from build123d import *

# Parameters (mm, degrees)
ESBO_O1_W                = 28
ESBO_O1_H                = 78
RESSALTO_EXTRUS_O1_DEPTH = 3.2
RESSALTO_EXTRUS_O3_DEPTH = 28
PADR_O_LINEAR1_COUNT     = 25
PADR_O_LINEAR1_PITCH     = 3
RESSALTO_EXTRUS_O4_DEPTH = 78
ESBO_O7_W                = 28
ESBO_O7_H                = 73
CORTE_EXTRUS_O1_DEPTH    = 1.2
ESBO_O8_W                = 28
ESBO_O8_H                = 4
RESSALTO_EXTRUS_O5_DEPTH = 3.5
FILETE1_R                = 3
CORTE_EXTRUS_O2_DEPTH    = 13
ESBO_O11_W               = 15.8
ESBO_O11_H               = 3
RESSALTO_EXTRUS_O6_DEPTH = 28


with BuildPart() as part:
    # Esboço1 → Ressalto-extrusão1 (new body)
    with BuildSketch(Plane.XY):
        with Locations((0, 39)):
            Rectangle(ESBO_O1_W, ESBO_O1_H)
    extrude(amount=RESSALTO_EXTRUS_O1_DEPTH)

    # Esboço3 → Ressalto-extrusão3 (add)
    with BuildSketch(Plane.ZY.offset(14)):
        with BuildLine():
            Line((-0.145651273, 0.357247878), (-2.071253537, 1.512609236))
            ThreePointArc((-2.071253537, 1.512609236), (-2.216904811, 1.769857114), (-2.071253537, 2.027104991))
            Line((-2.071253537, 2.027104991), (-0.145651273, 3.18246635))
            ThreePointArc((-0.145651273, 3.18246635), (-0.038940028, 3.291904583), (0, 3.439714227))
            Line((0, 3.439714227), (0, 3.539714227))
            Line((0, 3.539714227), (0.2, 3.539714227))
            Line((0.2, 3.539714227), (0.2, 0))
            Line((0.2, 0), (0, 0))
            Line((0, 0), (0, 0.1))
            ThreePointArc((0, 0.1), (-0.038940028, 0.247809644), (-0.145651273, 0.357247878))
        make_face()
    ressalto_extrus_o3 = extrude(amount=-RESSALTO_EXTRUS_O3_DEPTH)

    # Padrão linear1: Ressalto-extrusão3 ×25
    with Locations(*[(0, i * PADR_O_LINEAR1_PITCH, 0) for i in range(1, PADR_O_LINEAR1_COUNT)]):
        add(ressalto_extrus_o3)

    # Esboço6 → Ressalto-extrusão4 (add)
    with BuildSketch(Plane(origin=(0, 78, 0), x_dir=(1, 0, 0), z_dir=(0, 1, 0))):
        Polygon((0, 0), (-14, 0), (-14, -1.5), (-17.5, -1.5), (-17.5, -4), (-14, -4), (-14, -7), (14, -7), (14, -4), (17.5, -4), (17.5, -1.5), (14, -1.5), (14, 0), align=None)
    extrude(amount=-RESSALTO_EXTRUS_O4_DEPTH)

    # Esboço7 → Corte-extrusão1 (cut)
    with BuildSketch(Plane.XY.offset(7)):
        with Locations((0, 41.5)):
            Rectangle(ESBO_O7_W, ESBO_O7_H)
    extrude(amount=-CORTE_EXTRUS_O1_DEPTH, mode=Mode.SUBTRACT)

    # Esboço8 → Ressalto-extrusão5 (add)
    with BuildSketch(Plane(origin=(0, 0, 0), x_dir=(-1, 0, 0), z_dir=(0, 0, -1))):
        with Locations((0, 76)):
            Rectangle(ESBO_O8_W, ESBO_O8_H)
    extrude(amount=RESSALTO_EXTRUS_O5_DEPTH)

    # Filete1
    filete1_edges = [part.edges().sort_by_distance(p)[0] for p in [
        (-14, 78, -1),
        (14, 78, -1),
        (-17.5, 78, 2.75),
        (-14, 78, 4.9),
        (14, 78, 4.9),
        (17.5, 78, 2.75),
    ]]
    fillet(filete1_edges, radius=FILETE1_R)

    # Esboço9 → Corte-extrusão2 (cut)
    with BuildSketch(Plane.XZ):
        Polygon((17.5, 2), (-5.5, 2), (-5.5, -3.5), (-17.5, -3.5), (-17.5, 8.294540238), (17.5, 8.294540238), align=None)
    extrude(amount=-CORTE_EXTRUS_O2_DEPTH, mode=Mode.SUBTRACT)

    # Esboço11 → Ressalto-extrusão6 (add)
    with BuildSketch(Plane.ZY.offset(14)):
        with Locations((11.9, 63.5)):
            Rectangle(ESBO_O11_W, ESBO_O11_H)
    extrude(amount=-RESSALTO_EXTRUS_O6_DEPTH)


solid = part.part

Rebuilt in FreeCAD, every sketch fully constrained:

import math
import FreeCAD as App
import Part
import Sketcher

V = App.Vector
Q = App.Units.Quantity


def edges_at(feature, points):
    """Names of the edges that pass closest to the given points."""
    edges = feature.Shape.Edges
    near = lambda p: min(range(len(edges)), key=lambda i: edges[i].distToShape(Part.Vertex(*p))[0])
    return sorted({f"Edge{near(p) + 1}" for p in points})

doc = App.newDocument("Part")
params = doc.addObject("Spreadsheet::Sheet", "Params")
for row, (alias, value) in enumerate([
    ("sketch1_width", "28 mm"),
    ("sketch1_height", "78 mm"),
    ("pad1_length", "3.2 mm"),
    ("sketch2_radius", "0.3 mm"),
    ("sketch2_width", "0.1 mm"),
    ("sketch2_height", "0.2 mm"),
    ("pad2_length", "28 mm"),
    ("linearpattern_pitch", "3 mm"),
    ("sketch3_width", "28 mm"),
    ("sketch3_height", "3 mm"),
    ("sketch3_width2", "3.5 mm"),
    ("sketch3_height2", "1.5 mm"),
    ("sketch3_height3", "2.5 mm"),
    ("pad3_length", "78 mm"),
    ("sketch4_width", "28 mm"),
    ("sketch4_height", "73 mm"),
    ("pocket1_length", "1.2 mm"),
    ("sketch5_width", "28 mm"),
    ("sketch5_height", "4 mm"),
    ("pad4_length", "3.5 mm"),
    ("fillet_radius", "3 mm"),
    ("sketch6_width", "23 mm"),
    ("sketch6_width2", "35 mm"),
    ("sketch6_height", "5.5 mm"),
    ("pocket2_length", "13 mm"),
    ("sketch7_width", "3 mm"),
    ("sketch7_height", "15.8 mm"),
    ("pad5_length", "28 mm"),
], start=1):
    params.set(f"A{row}", alias)
    params.set(f"B{row}", "=" + value)
    params.setAlias(f"B{row}", alias)

body = doc.addObject("PartDesign::Body", "Body")

# Sketch on XY plane
sketch1 = body.newObject("Sketcher::SketchObject", "Sketch")
sketch1.AttachmentSupport = (doc.getObject("XY_Plane"), [""])
sketch1.MapMode = "FlatFace"
sketch1.addGeometry(Part.LineSegment(V(-14, 78, 0), V(-14, 0, 0)), False)
sketch1.addGeometry(Part.LineSegment(V(-14, 0, 0), V(14, 0, 0)), False)
sketch1.addGeometry(Part.LineSegment(V(14, 0, 0), V(14, 78, 0)), False)
sketch1.addGeometry(Part.LineSegment(V(14, 78, 0), V(-14, 78, 0)), False)
sketch1.addConstraint(Sketcher.Constraint("Coincident", 0, 2, 1, 1))
sketch1.addConstraint(Sketcher.Constraint("Coincident", 1, 2, 2, 1))
sketch1.addConstraint(Sketcher.Constraint("Coincident", 2, 2, 3, 1))
sketch1.addConstraint(Sketcher.Constraint("Coincident", 3, 2, 0, 1))
sketch1.addConstraint(Sketcher.Constraint("Vertical", 0))
sketch1.addConstraint(Sketcher.Constraint("Horizontal", 1))
sketch1.addConstraint(Sketcher.Constraint("Vertical", 2))
sketch1.addConstraint(Sketcher.Constraint("Horizontal", 3))
sketch1.addConstraint(Sketcher.Constraint("Symmetric", 0, 2, 1, 2, -1, 1))
sketch1.addConstraint(Sketcher.Constraint("DistanceX", 1, 1, 1, 2, Q("28 mm")))
sketch1.addConstraint(Sketcher.Constraint("DistanceY", 0, 2, 0, 1, Q("78 mm")))
sketch1.setExpression("Constraints[9]", "Params.sketch1_width")
sketch1.setExpression("Constraints[10]", "Params.sketch1_height")
pad1 = body.newObject("PartDesign::Pad", "Pad")
pad1.Profile = sketch1
pad1.setExpression("Length", "Params.pad1_length")

# Sketch on YZ plane
sketch2 = body.newObject("Sketcher::SketchObject", "Sketch001")
sketch2.AttachmentSupport = (doc.getObject("YZ_Plane"), [""])
sketch2.MapMode = "FlatFace"
sketch2.AttachmentOffset = App.Placement(V(0, 0, -14), App.Rotation())
sketch2.addGeometry(Part.LineSegment(V(1.51, -2.07, 0), V(0.36, -0.15, 0)), False)
sketch2.addGeometry(Part.ArcOfCircle(Part.Circle(V(0.1, -0.3, 0), V(0, 0, 1), 0.3), math.radians(31), math.radians(90)), False)
sketch2.addGeometry(Part.LineSegment(V(0.1, 0, 0), V(0, 0, 0)), False)
sketch2.addGeometry(Part.LineSegment(V(0, 0, 0), V(0, 0.2, 0)), False)
sketch2.addGeometry(Part.LineSegment(V(0, 0.2, 0), V(3.54, 0.2, 0)), False)
sketch2.addGeometry(Part.LineSegment(V(3.54, 0.2, 0), V(3.54, 0, 0)), False)
sketch2.addGeometry(Part.LineSegment(V(3.54, 0, 0), V(3.44, 0, 0)), False)
sketch2.addGeometry(Part.ArcOfCircle(Part.Circle(V(3.44, -0.3, 0), V(0, 0, 1), 0.3), math.radians(90), math.radians(149)), False)
sketch2.addGeometry(Part.LineSegment(V(3.18, -0.15, 0), V(2.03, -2.07, 0)), False)
sketch2.addGeometry(Part.ArcOfCircle(Part.Circle(V(1.77, -1.92, 0), V(0, 0, 1), 0.3), math.radians(-149), math.radians(-31)), False)
sketch2.addConstraint(Sketcher.Constraint("Tangent", 0, 2, 1, 1))
sketch2.addConstraint(Sketcher.Constraint("Tangent", 1, 2, 2, 1))
sketch2.addConstraint(Sketcher.Constraint("Coincident", 2, 2, 3, 1))
sketch2.addConstraint(Sketcher.Constraint("Coincident", 3, 2, 4, 1))
sketch2.addConstraint(Sketcher.Constraint("Coincident", 4, 2, 5, 1))
sketch2.addConstraint(Sketcher.Constraint("Coincident", 5, 2, 6, 1))
sketch2.addConstraint(Sketcher.Constraint("Tangent", 6, 2, 7, 1))
sketch2.addConstraint(Sketcher.Constraint("Tangent", 7, 2, 8, 1))
sketch2.addConstraint(Sketcher.Constraint("Tangent", 8, 2, 9, 2))
sketch2.addConstraint(Sketcher.Constraint("Tangent", 9, 1, 0, 1))
sketch2.addConstraint(Sketcher.Constraint("Horizontal", 2))
sketch2.addConstraint(Sketcher.Constraint("Vertical", 3))
sketch2.addConstraint(Sketcher.Constraint("Horizontal", 4))
sketch2.addConstraint(Sketcher.Constraint("Vertical", 5))
sketch2.addConstraint(Sketcher.Constraint("Horizontal", 6))
sketch2.addConstraint(Sketcher.Constraint("Coincident", 2, 2, -1, 1))
sketch2.addConstraint(Sketcher.Constraint("Equal", 1, 7))
sketch2.addConstraint(Sketcher.Constraint("Equal", 7, 9))
sketch2.addConstraint(Sketcher.Constraint("PointOnObject", 5, 2, -1))
sketch2.addConstraint(Sketcher.Constraint("Horizontal", 0, 2, 7, 2))
sketch2.addConstraint(Sketcher.Constraint("Equal", 2, 6))
sketch2.addConstraint(Sketcher.Constraint("Radius", 1, Q("0.3 mm")))
sketch2.addConstraint(Sketcher.Constraint("DistanceX", 2, 2, 2, 1, Q("0.1 mm")))
sketch2.addConstraint(Sketcher.Constraint("DistanceY", 3, 1, 3, 2, Q("0.2 mm")))
sketch2.addConstraint(Sketcher.Constraint("Distance", 0, Q("2.245619 mm")))
sketch2.addConstraint(Sketcher.Constraint("DistanceX", 4, 1, 4, 2, Q("3.539714 mm")))
sketch2.setExpression("Constraints[21]", "Params.sketch2_radius")
sketch2.setExpression("Constraints[22]", "Params.sketch2_width")
sketch2.setExpression("Constraints[23]", "Params.sketch2_height")
pad2 = body.newObject("PartDesign::Pad", "Pad001")
pad2.Profile = sketch2
pad2.setExpression("Length", "Params.pad2_length")
doc.recompute()

linearpattern = body.newObject("PartDesign::LinearPattern", "LinearPattern")
linearpattern.Originals = [pad2]
linearpattern.Direction = (doc.getObject("Y_Axis"), [""])
linearpattern.Mode = "offset"
linearpattern.setExpression("Offset", "Params.linearpattern_pitch")
linearpattern.Occurrences = 25
body.Tip = linearpattern

# Sketch on XZ plane
sketch3 = body.newObject("Sketcher::SketchObject", "Sketch002")
sketch3.AttachmentSupport = (doc.getObject("XZ_Plane"), [""])
sketch3.MapMode = "FlatFace"
sketch3.AttachmentOffset = App.Placement(V(0, 0, -78), App.Rotation())
sketch3.addGeometry(Part.LineSegment(V(-14, 0, 0), V(-14, 1.5, 0)), False)
sketch3.addGeometry(Part.LineSegment(V(-14, 1.5, 0), V(-17.5, 1.5, 0)), False)
sketch3.addGeometry(Part.LineSegment(V(-17.5, 1.5, 0), V(-17.5, 4, 0)), False)
sketch3.addGeometry(Part.LineSegment(V(-17.5, 4, 0), V(-14, 4, 0)), False)
sketch3.addGeometry(Part.LineSegment(V(-14, 4, 0), V(-14, 7, 0)), False)
sketch3.addGeometry(Part.LineSegment(V(-14, 7, 0), V(14, 7, 0)), False)
sketch3.addGeometry(Part.LineSegment(V(14, 7, 0), V(14, 4, 0)), False)
sketch3.addGeometry(Part.LineSegment(V(14, 4, 0), V(17.5, 4, 0)), False)
sketch3.addGeometry(Part.LineSegment(V(17.5, 4, 0), V(17.5, 1.5, 0)), False)
sketch3.addGeometry(Part.LineSegment(V(17.5, 1.5, 0), V(14, 1.5, 0)), False)
sketch3.addGeometry(Part.LineSegment(V(14, 1.5, 0), V(14, 0, 0)), False)
sketch3.addGeometry(Part.LineSegment(V(14, 0, 0), V(-14, 0, 0)), False)
sketch3.addConstraint(Sketcher.Constraint("Coincident", 0, 2, 1, 1))
sketch3.addConstraint(Sketcher.Constraint("Coincident", 1, 2, 2, 1))
sketch3.addConstraint(Sketcher.Constraint("Coincident", 2, 2, 3, 1))
sketch3.addConstraint(Sketcher.Constraint("Coincident", 3, 2, 4, 1))
sketch3.addConstraint(Sketcher.Constraint("Coincident", 4, 2, 5, 1))
sketch3.addConstraint(Sketcher.Constraint("Coincident", 5, 2, 6, 1))
sketch3.addConstraint(Sketcher.Constraint("Coincident", 6, 2, 7, 1))
sketch3.addConstraint(Sketcher.Constraint("Coincident", 7, 2, 8, 1))
sketch3.addConstraint(Sketcher.Constraint("Coincident", 8, 2, 9, 1))
sketch3.addConstraint(Sketcher.Constraint("Coincident", 9, 2, 10, 1))
sketch3.addConstraint(Sketcher.Constraint("Coincident", 10, 2, 11, 1))
sketch3.addConstraint(Sketcher.Constraint("Coincident", 11, 2, 0, 1))
sketch3.addConstraint(Sketcher.Constraint("Vertical", 0))
sketch3.addConstraint(Sketcher.Constraint("Horizontal", 1))
sketch3.addConstraint(Sketcher.Constraint("Vertical", 2))
sketch3.addConstraint(Sketcher.Constraint("Horizontal", 3))
sketch3.addConstraint(Sketcher.Constraint("Vertical", 4))
sketch3.addConstraint(Sketcher.Constraint("Horizontal", 5))
sketch3.addConstraint(Sketcher.Constraint("Vertical", 6))
sketch3.addConstraint(Sketcher.Constraint("Horizontal", 7))
sketch3.addConstraint(Sketcher.Constraint("Vertical", 8))
sketch3.addConstraint(Sketcher.Constraint("Horizontal", 9))
sketch3.addConstraint(Sketcher.Constraint("Vertical", 10))
sketch3.addConstraint(Sketcher.Constraint("Horizontal", 11))
sketch3.addConstraint(Sketcher.Constraint("Symmetric", 10, 2, 11, 2, -1, 1))
sketch3.addConstraint(Sketcher.Constraint("Symmetric", 3, 2, 6, 2, -2))
sketch3.addConstraint(Sketcher.Constraint("Symmetric", 1, 2, 8, 2, -2))
sketch3.addConstraint(Sketcher.Constraint("Vertical", 0, 2, 3, 2))
sketch3.addConstraint(Sketcher.Constraint("DistanceX", 5, 1, 5, 2, Q("28 mm")))
sketch3.addConstraint(Sketcher.Constraint("DistanceY", 4, 1, 4, 2, Q("3 mm")))
sketch3.addConstraint(Sketcher.Constraint("DistanceX", 1, 2, 1, 1, Q("3.5 mm")))
sketch3.addConstraint(Sketcher.Constraint("DistanceY", 0, 1, 0, 2, Q("1.5 mm")))
sketch3.addConstraint(Sketcher.Constraint("DistanceY", 2, 1, 2, 2, Q("2.5 mm")))
sketch3.setExpression("Constraints[28]", "Params.sketch3_width")
sketch3.setExpression("Constraints[29]", "Params.sketch3_height")
sketch3.setExpression("Constraints[30]", "Params.sketch3_width2")
sketch3.setExpression("Constraints[31]", "Params.sketch3_height2")
sketch3.setExpression("Constraints[32]", "Params.sketch3_height3")
pad3 = body.newObject("PartDesign::Pad", "Pad002")
pad3.Profile = sketch3
pad3.setExpression("Length", "Params.pad3_length")

# Sketch on XY plane
sketch4 = body.newObject("Sketcher::SketchObject", "Sketch003")
sketch4.AttachmentSupport = (doc.getObject("XY_Plane"), [""])
sketch4.MapMode = "FlatFace"
sketch4.AttachmentOffset = App.Placement(V(0, 0, 7), App.Rotation())
sketch4.addGeometry(Part.LineSegment(V(-14, 78, 0), V(-14, 5, 0)), False)
sketch4.addGeometry(Part.LineSegment(V(-14, 5, 0), V(14, 5, 0)), False)
sketch4.addGeometry(Part.LineSegment(V(14, 5, 0), V(14, 78, 0)), False)
sketch4.addGeometry(Part.LineSegment(V(14, 78, 0), V(-14, 78, 0)), False)
sketch4.addConstraint(Sketcher.Constraint("Coincident", 0, 2, 1, 1))
sketch4.addConstraint(Sketcher.Constraint("Coincident", 1, 2, 2, 1))
sketch4.addConstraint(Sketcher.Constraint("Coincident", 2, 2, 3, 1))
sketch4.addConstraint(Sketcher.Constraint("Coincident", 3, 2, 0, 1))
sketch4.addConstraint(Sketcher.Constraint("Vertical", 0))
sketch4.addConstraint(Sketcher.Constraint("Horizontal", 1))
sketch4.addConstraint(Sketcher.Constraint("Vertical", 2))
sketch4.addConstraint(Sketcher.Constraint("Horizontal", 3))
sketch4.addConstraint(Sketcher.Constraint("DistanceX", 1, 1, 1, 2, Q("28 mm")))
sketch4.addConstraint(Sketcher.Constraint("DistanceY", 0, 2, 0, 1, Q("73 mm")))
sketch4.addConstraint(Sketcher.Constraint("DistanceX", 0, 2, -1, 1, Q("14 mm")))
sketch4.addConstraint(Sketcher.Constraint("DistanceY", -1, 1, 0, 2, Q("5 mm")))
sketch4.setExpression("Constraints[8]", "Params.sketch4_width")
sketch4.setExpression("Constraints[9]", "Params.sketch4_height")
pocket1 = body.newObject("PartDesign::Pocket", "Pocket")
pocket1.Profile = sketch4
pocket1.setExpression("Length", "Params.pocket1_length")

# Sketch on XY plane
sketch5 = body.newObject("Sketcher::SketchObject", "Sketch004")
sketch5.AttachmentSupport = (doc.getObject("XY_Plane"), [""])
sketch5.MapMode = "FlatFace"
sketch5.addGeometry(Part.LineSegment(V(14, 78, 0), V(14, 74, 0)), False)
sketch5.addGeometry(Part.LineSegment(V(14, 74, 0), V(-14, 74, 0)), False)
sketch5.addGeometry(Part.LineSegment(V(-14, 74, 0), V(-14, 78, 0)), False)
sketch5.addGeometry(Part.LineSegment(V(-14, 78, 0), V(14, 78, 0)), False)
sketch5.addConstraint(Sketcher.Constraint("Coincident", 0, 2, 1, 1))
sketch5.addConstraint(Sketcher.Constraint("Coincident", 1, 2, 2, 1))
sketch5.addConstraint(Sketcher.Constraint("Coincident", 2, 2, 3, 1))
sketch5.addConstraint(Sketcher.Constraint("Coincident", 3, 2, 0, 1))
sketch5.addConstraint(Sketcher.Constraint("Vertical", 0))
sketch5.addConstraint(Sketcher.Constraint("Horizontal", 1))
sketch5.addConstraint(Sketcher.Constraint("Vertical", 2))
sketch5.addConstraint(Sketcher.Constraint("Horizontal", 3))
sketch5.addConstraint(Sketcher.Constraint("DistanceX", 1, 2, 1, 1, Q("28 mm")))
sketch5.addConstraint(Sketcher.Constraint("DistanceY", 0, 2, 0, 1, Q("4 mm")))
sketch5.addConstraint(Sketcher.Constraint("DistanceX", -1, 1, 0, 2, Q("14 mm")))
sketch5.addConstraint(Sketcher.Constraint("DistanceY", -1, 1, 0, 2, Q("74 mm")))
sketch5.setExpression("Constraints[8]", "Params.sketch5_width")
sketch5.setExpression("Constraints[9]", "Params.sketch5_height")
pad4 = body.newObject("PartDesign::Pad", "Pad003")
pad4.Profile = sketch5
pad4.setExpression("Length", "Params.pad4_length")
pad4.Reversed = True
doc.recompute()

fillet = body.newObject("PartDesign::Fillet", "Fillet")
fillet.Base = (pad4, edges_at(pad4, [
    (-14, 78, -1),
    (14, 78, -1),
    (-17.5, 78, 2.75),
    (-14, 78, 4.9),
    (14, 78, 4.9),
    (17.5, 78, 2.75),
]))
fillet.setExpression("Radius", "Params.fillet_radius")

# Sketch on XZ plane
sketch6 = body.newObject("Sketcher::SketchObject", "Sketch005")
sketch6.AttachmentSupport = (doc.getObject("XZ_Plane"), [""])
sketch6.MapMode = "FlatFace"
sketch6.addGeometry(Part.LineSegment(V(-6, 2, 0), V(18, 2, 0)), False)
sketch6.addGeometry(Part.LineSegment(V(18, 2, 0), V(18, 8, 0)), False)
sketch6.addGeometry(Part.LineSegment(V(18, 8, 0), V(-18, 8, 0)), False)
sketch6.addGeometry(Part.LineSegment(V(-18, 8, 0), V(-18, -4, 0)), False)
sketch6.addGeometry(Part.LineSegment(V(-18, -4, 0), V(-6, -4, 0)), False)
sketch6.addGeometry(Part.LineSegment(V(-6, -4, 0), V(-6, 2, 0)), False)
sketch6.addConstraint(Sketcher.Constraint("Coincident", 0, 2, 1, 1))
sketch6.addConstraint(Sketcher.Constraint("Coincident", 1, 2, 2, 1))
sketch6.addConstraint(Sketcher.Constraint("Coincident", 2, 2, 3, 1))
sketch6.addConstraint(Sketcher.Constraint("Coincident", 3, 2, 4, 1))
sketch6.addConstraint(Sketcher.Constraint("Coincident", 4, 2, 5, 1))
sketch6.addConstraint(Sketcher.Constraint("Coincident", 5, 2, 0, 1))
sketch6.addConstraint(Sketcher.Constraint("Horizontal", 0))
sketch6.addConstraint(Sketcher.Constraint("Vertical", 1))
sketch6.addConstraint(Sketcher.Constraint("Horizontal", 2))
sketch6.addConstraint(Sketcher.Constraint("Vertical", 3))
sketch6.addConstraint(Sketcher.Constraint("Horizontal", 4))
sketch6.addConstraint(Sketcher.Constraint("Vertical", 5))
sketch6.addConstraint(Sketcher.Constraint("DistanceX", 0, 1, 0, 2, Q("23 mm")))
sketch6.addConstraint(Sketcher.Constraint("DistanceX", 2, 2, 2, 1, Q("35 mm")))
sketch6.addConstraint(Sketcher.Constraint("DistanceY", 5, 1, 5, 2, Q("5.5 mm")))
sketch6.addConstraint(Sketcher.Constraint("DistanceY", -1, 1, 0, 2, Q("2 mm")))
sketch6.addConstraint(Sketcher.Constraint("DistanceX", -1, 1, 0, 2, Q("17.5 mm")))
sketch6.addConstraint(Sketcher.Constraint("DistanceY", 1, 1, 1, 2, Q("6.29454 mm")))
sketch6.setExpression("Constraints[12]", "Params.sketch6_width")
sketch6.setExpression("Constraints[13]", "Params.sketch6_width2")
sketch6.setExpression("Constraints[14]", "Params.sketch6_height")
pocket2 = body.newObject("PartDesign::Pocket", "Pocket001")
pocket2.Profile = sketch6
pocket2.setExpression("Length", "Params.pocket2_length")

# Sketch on YZ plane
sketch7 = body.newObject("Sketcher::SketchObject", "Sketch006")
sketch7.AttachmentSupport = (doc.getObject("YZ_Plane"), [""])
sketch7.MapMode = "FlatFace"
sketch7.AttachmentOffset = App.Placement(V(0, 0, -14), App.Rotation())
sketch7.addGeometry(Part.LineSegment(V(65, 4, 0), V(62, 4, 0)), False)
sketch7.addGeometry(Part.LineSegment(V(62, 4, 0), V(62, 19.8, 0)), False)
sketch7.addGeometry(Part.LineSegment(V(62, 19.8, 0), V(65, 19.8, 0)), False)
sketch7.addGeometry(Part.LineSegment(V(65, 19.8, 0), V(65, 4, 0)), False)
sketch7.addConstraint(Sketcher.Constraint("Coincident", 0, 2, 1, 1))
sketch7.addConstraint(Sketcher.Constraint("Coincident", 1, 2, 2, 1))
sketch7.addConstraint(Sketcher.Constraint("Coincident", 2, 2, 3, 1))
sketch7.addConstraint(Sketcher.Constraint("Coincident", 3, 2, 0, 1))
sketch7.addConstraint(Sketcher.Constraint("Horizontal", 0))
sketch7.addConstraint(Sketcher.Constraint("Vertical", 1))
sketch7.addConstraint(Sketcher.Constraint("Horizontal", 2))
sketch7.addConstraint(Sketcher.Constraint("Vertical", 3))
sketch7.addConstraint(Sketcher.Constraint("DistanceX", 0, 2, 0, 1, Q("3 mm")))
sketch7.addConstraint(Sketcher.Constraint("DistanceY", 1, 1, 1, 2, Q("15.8 mm")))
sketch7.addConstraint(Sketcher.Constraint("DistanceX", -1, 1, 0, 2, Q("62 mm")))
sketch7.addConstraint(Sketcher.Constraint("DistanceY", -1, 1, 0, 2, Q("4 mm")))
sketch7.setExpression("Constraints[8]", "Params.sketch7_width")
sketch7.setExpression("Constraints[9]", "Params.sketch7_height")
pad5 = body.newObject("PartDesign::Pad", "Pad004")
pad5.Profile = sketch7
pad5.setExpression("Length", "Params.pad5_length")

doc.recompute()
